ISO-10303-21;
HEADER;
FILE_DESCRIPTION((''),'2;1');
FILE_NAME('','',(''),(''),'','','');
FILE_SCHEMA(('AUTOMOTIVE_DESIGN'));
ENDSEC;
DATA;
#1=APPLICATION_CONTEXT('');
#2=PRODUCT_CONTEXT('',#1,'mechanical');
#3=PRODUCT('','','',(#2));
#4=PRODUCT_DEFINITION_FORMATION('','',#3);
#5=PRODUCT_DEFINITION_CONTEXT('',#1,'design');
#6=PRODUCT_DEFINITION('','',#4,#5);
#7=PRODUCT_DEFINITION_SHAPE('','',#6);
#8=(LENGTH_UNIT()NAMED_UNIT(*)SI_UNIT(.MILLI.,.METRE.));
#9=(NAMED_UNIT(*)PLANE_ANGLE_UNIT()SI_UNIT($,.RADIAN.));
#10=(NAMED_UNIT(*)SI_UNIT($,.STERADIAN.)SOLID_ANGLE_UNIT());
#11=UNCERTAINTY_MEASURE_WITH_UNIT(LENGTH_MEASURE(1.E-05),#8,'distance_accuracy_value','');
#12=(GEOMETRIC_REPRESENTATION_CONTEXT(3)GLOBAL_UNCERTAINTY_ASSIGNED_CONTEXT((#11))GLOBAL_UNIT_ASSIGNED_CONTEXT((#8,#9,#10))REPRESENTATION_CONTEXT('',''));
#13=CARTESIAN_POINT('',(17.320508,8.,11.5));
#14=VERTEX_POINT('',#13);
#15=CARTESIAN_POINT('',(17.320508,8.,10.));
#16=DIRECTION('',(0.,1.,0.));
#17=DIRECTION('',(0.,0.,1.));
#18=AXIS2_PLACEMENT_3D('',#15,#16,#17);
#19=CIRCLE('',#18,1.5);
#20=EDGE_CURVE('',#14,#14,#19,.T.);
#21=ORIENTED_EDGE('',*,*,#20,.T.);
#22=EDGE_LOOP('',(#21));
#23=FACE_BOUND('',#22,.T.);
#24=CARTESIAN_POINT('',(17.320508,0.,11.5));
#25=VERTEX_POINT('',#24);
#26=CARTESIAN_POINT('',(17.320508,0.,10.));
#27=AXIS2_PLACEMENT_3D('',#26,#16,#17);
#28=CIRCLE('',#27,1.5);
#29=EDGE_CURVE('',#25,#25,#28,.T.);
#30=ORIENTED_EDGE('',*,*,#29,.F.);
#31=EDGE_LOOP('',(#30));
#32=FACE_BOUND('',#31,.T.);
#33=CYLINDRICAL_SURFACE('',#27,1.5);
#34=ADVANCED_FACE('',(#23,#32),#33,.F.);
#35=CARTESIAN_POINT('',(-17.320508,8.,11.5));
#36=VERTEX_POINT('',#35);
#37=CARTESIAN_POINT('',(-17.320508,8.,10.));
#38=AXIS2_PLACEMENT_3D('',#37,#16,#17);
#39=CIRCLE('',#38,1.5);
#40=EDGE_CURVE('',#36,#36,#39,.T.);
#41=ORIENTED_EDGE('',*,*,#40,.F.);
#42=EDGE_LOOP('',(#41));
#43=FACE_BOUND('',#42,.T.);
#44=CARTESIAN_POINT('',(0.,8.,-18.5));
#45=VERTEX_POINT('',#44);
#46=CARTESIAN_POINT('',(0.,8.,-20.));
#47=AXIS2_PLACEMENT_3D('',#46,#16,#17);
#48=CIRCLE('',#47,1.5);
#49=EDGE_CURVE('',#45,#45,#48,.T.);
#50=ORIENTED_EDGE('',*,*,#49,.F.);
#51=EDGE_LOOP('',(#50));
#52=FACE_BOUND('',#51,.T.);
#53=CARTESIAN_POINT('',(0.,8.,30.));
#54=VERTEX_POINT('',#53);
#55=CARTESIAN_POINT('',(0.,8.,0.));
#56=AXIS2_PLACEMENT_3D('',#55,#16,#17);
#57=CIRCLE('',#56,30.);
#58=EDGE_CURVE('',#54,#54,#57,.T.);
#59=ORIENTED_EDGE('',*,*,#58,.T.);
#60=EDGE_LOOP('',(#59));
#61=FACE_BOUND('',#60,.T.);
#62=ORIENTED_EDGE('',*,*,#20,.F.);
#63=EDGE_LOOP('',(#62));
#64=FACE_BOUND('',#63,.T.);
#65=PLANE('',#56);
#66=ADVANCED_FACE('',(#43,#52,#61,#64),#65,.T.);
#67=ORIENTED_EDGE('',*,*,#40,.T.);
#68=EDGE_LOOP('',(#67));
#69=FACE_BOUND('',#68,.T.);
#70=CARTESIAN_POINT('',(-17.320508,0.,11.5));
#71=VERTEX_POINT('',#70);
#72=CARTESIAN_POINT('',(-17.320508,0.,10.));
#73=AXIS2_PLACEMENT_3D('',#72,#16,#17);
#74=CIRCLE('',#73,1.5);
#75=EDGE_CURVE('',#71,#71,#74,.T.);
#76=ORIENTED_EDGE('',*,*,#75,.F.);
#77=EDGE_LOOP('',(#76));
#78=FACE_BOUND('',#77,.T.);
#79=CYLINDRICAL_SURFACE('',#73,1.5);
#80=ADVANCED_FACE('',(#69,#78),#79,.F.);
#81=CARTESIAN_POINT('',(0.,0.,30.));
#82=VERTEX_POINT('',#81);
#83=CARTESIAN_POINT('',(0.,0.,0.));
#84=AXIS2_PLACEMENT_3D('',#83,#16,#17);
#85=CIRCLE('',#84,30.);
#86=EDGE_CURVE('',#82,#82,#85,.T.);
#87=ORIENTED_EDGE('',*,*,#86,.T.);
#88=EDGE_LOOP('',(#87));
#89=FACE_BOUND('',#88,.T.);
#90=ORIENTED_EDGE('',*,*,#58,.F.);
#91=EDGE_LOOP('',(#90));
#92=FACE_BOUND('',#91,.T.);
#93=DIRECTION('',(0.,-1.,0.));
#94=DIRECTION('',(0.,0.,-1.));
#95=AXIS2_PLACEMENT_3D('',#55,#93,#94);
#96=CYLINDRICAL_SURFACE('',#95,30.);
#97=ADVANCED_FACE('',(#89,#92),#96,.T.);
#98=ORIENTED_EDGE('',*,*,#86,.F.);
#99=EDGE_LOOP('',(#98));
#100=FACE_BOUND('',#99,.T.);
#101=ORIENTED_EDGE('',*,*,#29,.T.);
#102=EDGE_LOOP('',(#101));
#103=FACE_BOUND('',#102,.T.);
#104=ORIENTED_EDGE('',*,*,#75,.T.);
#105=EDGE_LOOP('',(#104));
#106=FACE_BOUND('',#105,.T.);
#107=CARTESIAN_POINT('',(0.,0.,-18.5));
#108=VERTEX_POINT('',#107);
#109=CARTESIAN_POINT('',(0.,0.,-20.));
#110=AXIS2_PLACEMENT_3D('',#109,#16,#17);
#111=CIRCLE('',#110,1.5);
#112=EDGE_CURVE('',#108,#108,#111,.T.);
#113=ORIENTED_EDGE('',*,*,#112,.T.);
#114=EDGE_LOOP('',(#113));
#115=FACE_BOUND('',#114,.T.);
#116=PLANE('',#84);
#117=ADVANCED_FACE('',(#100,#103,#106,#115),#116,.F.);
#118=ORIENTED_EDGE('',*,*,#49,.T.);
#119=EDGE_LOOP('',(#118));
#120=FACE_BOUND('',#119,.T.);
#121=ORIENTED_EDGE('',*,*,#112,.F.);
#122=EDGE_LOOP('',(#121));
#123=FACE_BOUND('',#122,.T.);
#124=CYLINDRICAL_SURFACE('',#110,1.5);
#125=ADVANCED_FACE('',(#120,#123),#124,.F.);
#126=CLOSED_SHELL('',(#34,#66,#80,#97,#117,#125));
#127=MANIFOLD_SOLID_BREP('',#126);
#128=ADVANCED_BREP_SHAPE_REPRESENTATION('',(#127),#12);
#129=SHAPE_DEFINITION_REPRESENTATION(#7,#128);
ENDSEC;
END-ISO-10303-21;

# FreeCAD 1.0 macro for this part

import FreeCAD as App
import Part
import Sketcher
from FreeCAD import Vector

doc = App.newDocument("Part")
body = doc.addObject("PartDesign::Body", "Body")

sketch1 = body.newObject("Sketcher::SketchObject", "Sketch")
sketch1.AttachmentSupport = (doc.getObject("XZ_Plane"), [""])
sketch1.MapMode = "FlatFace"
sketch1.addGeometry(Part.Circle(Vector(0, 0, 0), Vector(0, 0, 1), 30), False)
sketch1.addConstraint([
    Sketcher.Constraint("Coincident", 0, 3, -1, 1),
    Sketcher.Constraint("Diameter", 0, 60.0),
])
pad1 = body.newObject("PartDesign::Pad", "Pad")
pad1.Profile = sketch1
pad1.Length = 8
pad1.Reversed = True

sketch2 = body.newObject("Sketcher::SketchObject", "Sketch001")
sketch2.AttachmentSupport = (doc.getObject("XZ_Plane"), [""])
sketch2.MapMode = "FlatFace"
sketch2.AttachmentOffset = App.Placement(Vector(0, 0, -8), App.Rotation())
sketch2.addGeometry([
    Part.Circle(Vector(0, -20, 0), Vector(0, 0, 1), 1.5),
    Part.Circle(Vector(17.320508, 10, 0), Vector(0, 0, 1), 1.5),
    Part.Circle(Vector(-17.320508, 10, 0), Vector(0, 0, 1), 1.5),
], False)
sketch2.addConstraint([
    Sketcher.Constraint("Equal", 0, 1),
    Sketcher.Constraint("Equal", 1, 2),
    Sketcher.Constraint("Symmetric", 1, 3, 2, 3, -2),
    Sketcher.Constraint("PointOnObject", 0, 3, -2),
    Sketcher.Constraint("Diameter", 0, 3.0),
    Sketcher.Constraint("DistanceY", 0, 3, -1, 1, 20.0),
    Sketcher.Constraint("DistanceY", -1, 1, 1, 3, 10.0),
    Sketcher.Constraint("DistanceX", -1, 1, 1, 3, 17.320508),
])
pocket1 = body.newObject("PartDesign::Pocket", "Pocket")
pocket1.Profile = sketch2
pocket1.Length = 8
pocket1.Reversed = True

doc.recompute()
